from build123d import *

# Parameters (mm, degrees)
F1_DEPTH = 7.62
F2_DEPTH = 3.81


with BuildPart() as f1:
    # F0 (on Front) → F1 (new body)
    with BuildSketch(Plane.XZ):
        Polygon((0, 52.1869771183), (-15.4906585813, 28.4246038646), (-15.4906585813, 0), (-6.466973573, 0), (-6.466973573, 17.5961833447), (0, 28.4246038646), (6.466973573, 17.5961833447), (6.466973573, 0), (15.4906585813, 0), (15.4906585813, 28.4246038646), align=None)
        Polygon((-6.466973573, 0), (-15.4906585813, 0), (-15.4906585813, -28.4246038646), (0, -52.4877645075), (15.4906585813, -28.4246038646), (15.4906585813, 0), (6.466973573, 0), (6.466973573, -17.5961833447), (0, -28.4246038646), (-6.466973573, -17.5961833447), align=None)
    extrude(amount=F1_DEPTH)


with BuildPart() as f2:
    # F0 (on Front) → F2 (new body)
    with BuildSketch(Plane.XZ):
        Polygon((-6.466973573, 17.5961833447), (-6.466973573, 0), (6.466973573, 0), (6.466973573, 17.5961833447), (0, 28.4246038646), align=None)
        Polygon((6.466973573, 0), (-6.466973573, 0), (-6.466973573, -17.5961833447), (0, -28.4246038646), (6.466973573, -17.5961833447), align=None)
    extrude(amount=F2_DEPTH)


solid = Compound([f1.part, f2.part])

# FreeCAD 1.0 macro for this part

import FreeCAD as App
import Part
import Sketcher

V = App.Vector
Q = App.Units.Quantity

doc = App.newDocument("Part")
body = doc.addObject("PartDesign::Body", "Body")

# Sketch on XZ plane
sketch1 = body.newObject("Sketcher::SketchObject", "Sketch")
sketch1.AttachmentSupport = (doc.getObject("XZ_Plane"), [""])
sketch1.MapMode = "FlatFace"
sketch1.addGeometry([
    Part.LineSegment(V(0, 52, 0), V(-15, 28, 0)),  # 0
    Part.LineSegment(V(-15, 28, 0), V(-15, -28, 0)),  # 1
    Part.LineSegment(V(-15, -28, 0), V(0, -52, 0)),  # 2
    Part.LineSegment(V(0, -52, 0), V(15, -28, 0)),  # 3
    Part.LineSegment(V(15, -28, 0), V(15, 28, 0)),  # 4
    Part.LineSegment(V(15, 28, 0), V(0, 52, 0)),  # 5
    Part.LineSegment(V(-6, 18, 0), V(0, 28, 0)),  # 6
    Part.LineSegment(V(0, 28, 0), V(6, 18, 0)),  # 7
    Part.LineSegment(V(6, 18, 0), V(6, -18, 0)),  # 8
    Part.LineSegment(V(6, -18, 0), V(0, -28, 0)),  # 9
    Part.LineSegment(V(0, -28, 0), V(-6, -18, 0)),  # 10
    Part.LineSegment(V(-6, -18, 0), V(-6, 18, 0)),  # 11
], False)
sketch1.addConstraint([
    Sketcher.Constraint("Coincident", 0, 2, 1, 1),
    Sketcher.Constraint("Coincident", 1, 2, 2, 1),
    Sketcher.Constraint("Coincident", 2, 2, 3, 1),
    Sketcher.Constraint("Coincident", 3, 2, 4, 1),
    Sketcher.Constraint("Coincident", 4, 2, 5, 1),
    Sketcher.Constraint("Coincident", 5, 2, 0, 1),
    Sketcher.Constraint("Coincident", 6, 2, 7, 1),
    Sketcher.Constraint("Coincident", 7, 2, 8, 1),
    Sketcher.Constraint("Coincident", 8, 2, 9, 1),
    Sketcher.Constraint("Coincident", 9, 2, 10, 1),
    Sketcher.Constraint("Coincident", 10, 2, 11, 1),
    Sketcher.Constraint("Coincident", 11, 2, 6, 1),
    Sketcher.Constraint("Vertical", 1),
    Sketcher.Constraint("Vertical", 4),
    Sketcher.Constraint("Vertical", 8),
    Sketcher.Constraint("Vertical", 11),
    Sketcher.Constraint("Symmetric", 0, 2, 3, 2, -1, 1),
    Sketcher.Constraint("Symmetric", 6, 2, 9, 2, -1, 1),
    Sketcher.Constraint("Symmetric", 7, 2, 10, 2, -1, 1),
    Sketcher.Constraint("PointOnObject", 2, 2, -2),
    Sketcher.Constraint("PointOnObject", 5, 2, -2),
    Sketcher.Constraint("PointOnObject", 6, 2, -2),
    Sketcher.Constraint("Parallel", 6, 9),
    Sketcher.Constraint("Horizontal", 1, 2, 3, 2),
    Sketcher.Constraint("Horizontal", 0, 2, 4, 2),
    Sketcher.Constraint("Horizontal", 4, 2, 6, 2),
    Sketcher.Constraint("Horizontal", 8, 2, 10, 2),
    Sketcher.Constraint("Distance", 2, 28.61811),
    Sketcher.Constraint("Distance", 6, 12.612551),
    Sketcher.Constraint("DistanceY", 1, 2, 1, 1, 56.849208),
    Sketcher.Constraint("DistanceY", 8, 2, 8, 1, 35.192367),
    Sketcher.Constraint("DistanceX", 0, 2, -1, 1, 15.490659),
    Sketcher.Constraint("DistanceY", 1, 2, 5, 2, 80.611581),
])
pad1 = body.newObject("PartDesign::Pad", "Pad")
pad1.Profile = sketch1
pad1.Length = Q("0.3 in")
body2 = doc.addObject("PartDesign::Body", "Body001")

# Sketch on XZ plane
sketch2 = body2.newObject("Sketcher::SketchObject", "Sketch001")
sketch2.AttachmentSupport = (doc.getObject("XZ_Plane001"), [""])
sketch2.MapMode = "FlatFace"
sketch2.addGeometry([
    Part.LineSegment(V(-6, 18, 0), V(-6, -18, 0)),  # 0
    Part.LineSegment(V(-6, -18, 0), V(0, -28, 0)),  # 1
    Part.LineSegment(V(0, -28, 0), V(6, -18, 0)),  # 2
    Part.LineSegment(V(6, -18, 0), V(6, 18, 0)),  # 3
    Part.LineSegment(V(6, 18, 0), V(0, 28, 0)),  # 4
    Part.LineSegment(V(0, 28, 0), V(-6, 18, 0)),  # 5
], False)
sketch2.addConstraint([
    Sketcher.Constraint("Coincident", 0, 2, 1, 1),
    Sketcher.Constraint("Coincident", 1, 2, 2, 1),
    Sketcher.Constraint("Coincident", 2, 2, 3, 1),
    Sketcher.Constraint("Coincident", 3, 2, 4, 1),
    Sketcher.Constraint("Coincident", 4, 2, 5, 1),
    Sketcher.Constraint("Coincident", 5, 2, 0, 1),
    Sketcher.Constraint("Vertical", 0),
    Sketcher.Constraint("Vertical", 3),
    Sketcher.Constraint("Symmetric", 0, 2, 3, 2, -1, 1),
    Sketcher.Constraint("Symmetric", 1, 2, 4, 2, -1, 1),
    Sketcher.Constraint("PointOnObject", 1, 2, -2),
    Sketcher.Constraint("Parallel", 2, 5),
    Sketcher.Constraint("Horizontal", 0, 2, 2, 2),
    Sketcher.Constraint("Distance", 1, 12.612551),
    Sketcher.Constraint("DistanceY", 0, 2, 0, 1, 35.192367),
    Sketcher.Constraint("DistanceY", 1, 2, 0, 2, 10.828421),
])
pad2 = body2.newObject("PartDesign::Pad", "Pad001")
pad2.Profile = sketch2
pad2.Length = Q("0.15 in")

doc.recompute()
